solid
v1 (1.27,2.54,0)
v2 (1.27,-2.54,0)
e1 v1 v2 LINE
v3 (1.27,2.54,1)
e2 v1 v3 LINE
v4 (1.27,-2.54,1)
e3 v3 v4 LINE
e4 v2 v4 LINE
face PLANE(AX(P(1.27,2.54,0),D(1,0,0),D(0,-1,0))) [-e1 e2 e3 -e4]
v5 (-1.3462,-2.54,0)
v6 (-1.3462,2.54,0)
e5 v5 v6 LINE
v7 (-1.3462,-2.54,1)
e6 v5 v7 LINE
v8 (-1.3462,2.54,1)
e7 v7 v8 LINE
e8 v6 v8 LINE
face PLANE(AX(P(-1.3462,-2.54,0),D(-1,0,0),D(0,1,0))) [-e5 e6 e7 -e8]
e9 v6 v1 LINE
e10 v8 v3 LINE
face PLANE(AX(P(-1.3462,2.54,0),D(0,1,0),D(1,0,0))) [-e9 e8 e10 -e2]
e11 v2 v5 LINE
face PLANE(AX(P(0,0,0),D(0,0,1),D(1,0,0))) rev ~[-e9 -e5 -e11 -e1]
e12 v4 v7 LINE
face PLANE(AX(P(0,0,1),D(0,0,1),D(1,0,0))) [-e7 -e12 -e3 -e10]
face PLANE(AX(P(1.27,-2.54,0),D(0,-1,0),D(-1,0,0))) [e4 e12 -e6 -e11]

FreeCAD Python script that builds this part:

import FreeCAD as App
import Part
import Sketcher
from FreeCAD import Vector
Q = App.Units.Quantity

doc = App.newDocument("Part")
params = doc.addObject("Spreadsheet::Sheet", "Params")
for row, (alias, value) in enumerate([
    ("sketch1_height", "0.2 in"),
    ("sketch1_width", "0.103 in"),
    ("pad1_length", "1 mm"),
], start=1):
    params.set(f"A{row}", alias)
    params.set(f"B{row}", "=" + value)
    params.setAlias(f"B{row}", alias)

body = doc.addObject("PartDesign::Body", "Body")

# Sketch on XY plane
sketch1 = body.newObject("Sketcher::SketchObject", "Sketch")
sketch1.AttachmentSupport = (doc.getObject("XY_Plane"), [""])
sketch1.MapMode = "FlatFace"
sketch1.addGeometry([
    Part.LineSegment(Vector(1.3, 2.5, 0), Vector(-1.3, 2.5, 0)),
    Part.LineSegment(Vector(-1.3, 2.5, 0), Vector(-1.3, -2.5, 0)),
    Part.LineSegment(Vector(-1.3, -2.5, 0), Vector(1.3, -2.5, 0)),
    Part.LineSegment(Vector(1.3, -2.5, 0), Vector(1.3, 2.5, 0)),
], False)
sketch1.addConstraint([
    Sketcher.Constraint("Coincident", 0, 2, 1, 1),
    Sketcher.Constraint("Coincident", 1, 2, 2, 1),
    Sketcher.Constraint("Coincident", 2, 2, 3, 1),
    Sketcher.Constraint("Coincident", 3, 2, 0, 1),
    Sketcher.Constraint("Horizontal", 0),
    Sketcher.Constraint("Vertical", 1),
    Sketcher.Constraint("Horizontal", 2),
    Sketcher.Constraint("Vertical", 3),
    Sketcher.Constraint("DistanceY", 1, 2, 1, 1, Q("0.2 in")),
    Sketcher.Constraint("DistanceY", -1, 1, 0, 2, Q("0.1 in")),
    Sketcher.Constraint("DistanceX", 0, 2, 0, 1, Q("0.103 in")),
    Sketcher.Constraint("DistanceX", -1, 1, 2, 2, Q("0.05 in")),
])
sketch1.setExpression("Constraints[8]", "Params.sketch1_height")
sketch1.setExpression("Constraints[10]", "Params.sketch1_width")
pad1 = body.newObject("PartDesign::Pad", "Pad")
pad1.Profile = sketch1
pad1.setExpression("Length", "Params.pad1_length")

doc.recompute()
